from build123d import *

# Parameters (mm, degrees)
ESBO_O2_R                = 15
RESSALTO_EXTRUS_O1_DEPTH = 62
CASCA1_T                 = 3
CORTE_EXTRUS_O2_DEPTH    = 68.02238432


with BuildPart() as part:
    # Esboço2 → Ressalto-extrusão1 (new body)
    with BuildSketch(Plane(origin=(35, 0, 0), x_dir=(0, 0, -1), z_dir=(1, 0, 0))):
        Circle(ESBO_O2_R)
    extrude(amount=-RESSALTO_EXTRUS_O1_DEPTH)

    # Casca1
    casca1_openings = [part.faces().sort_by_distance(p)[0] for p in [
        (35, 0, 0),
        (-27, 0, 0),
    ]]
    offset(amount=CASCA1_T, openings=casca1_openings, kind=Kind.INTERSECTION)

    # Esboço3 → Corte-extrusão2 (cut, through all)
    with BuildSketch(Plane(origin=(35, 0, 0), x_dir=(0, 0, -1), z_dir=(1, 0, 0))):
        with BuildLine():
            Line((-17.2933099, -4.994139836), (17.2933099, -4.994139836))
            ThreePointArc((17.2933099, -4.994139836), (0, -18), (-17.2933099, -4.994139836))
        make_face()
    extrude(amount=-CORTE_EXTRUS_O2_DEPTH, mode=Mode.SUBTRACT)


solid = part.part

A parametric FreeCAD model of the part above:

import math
import FreeCAD as App
import Part
import Sketcher
from FreeCAD import Vector
Q = App.Units.Quantity


def faces_at(feature, points):
    """Names of the faces that lie closest to the given points."""
    faces = feature.Shape.Faces
    near = lambda p: min(range(len(faces)), key=lambda i: faces[i].distToShape(Part.Vertex(*p))[0])
    return sorted({f"Face{near(p) + 1}" for p in points})

doc = App.newDocument("Part")
body = doc.addObject("PartDesign::Body", "Body")

sketch1 = body.newObject("Sketcher::SketchObject", "Sketch")
sketch1.AttachmentSupport = (doc.getObject("YZ_Plane"), [""])
sketch1.MapMode = "FlatFace"
sketch1.AttachmentOffset = App.Placement(Vector(0, 0, 35), App.Rotation())
sketch1.addGeometry(Part.Circle(Vector(0, 0, 0), Vector(0, 0, 1), 15), False)
sketch1.addConstraint([
    Sketcher.Constraint("Coincident", 0, 3, -1, 1),
    Sketcher.Constraint("Diameter", 0, Q("30 mm")),
])
pad1 = body.newObject("PartDesign::Pad", "Pad")
pad1.Profile = sketch1
pad1.Length = 62
pad1.Reversed = True
doc.recompute()

thickness = body.newObject("PartDesign::Thickness", "Thickness")
thickness.Base = (pad1, faces_at(pad1, [(35, 0, 0), (-27, 0, 0)]))
thickness.Value = 3
thickness.Reversed = False
thickness.Join = "Intersection"

sketch2 = body.newObject("Sketcher::SketchObject", "Sketch001")
sketch2.AttachmentSupport = (doc.getObject("YZ_Plane"), [""])
sketch2.MapMode = "FlatFace"
sketch2.AttachmentOffset = App.Placement(Vector(0, 0, 35), App.Rotation())
sketch2.addGeometry([
    Part.LineSegment(Vector(-5, -17, 0), Vector(-5, 17, 0)),
    Part.ArcOfCircle(Part.Circle(Vector(0, 0, 0), Vector(0, 0, 1), 18), math.radians(106), math.radians(254)),
], False)
sketch2.addConstraint([
    Sketcher.Constraint("Coincident", 0, 1, 1, 2),
    Sketcher.Constraint("Coincident", 1, 1, 0, 2),
    Sketcher.Constraint("Vertical", 0),
    Sketcher.Constraint("Coincident", 1, 3, -1, 1),
    Sketcher.Constraint("Radius", 1, Q("18 mm")),
    Sketcher.Constraint("DistanceY", 0, 1, 0, 2, Q("34.58662 mm")),
])
pocket1 = body.newObject("PartDesign::Pocket", "Pocket")
pocket1.Profile = sketch2
pocket1.Type = "ThroughAll"

doc.recompute()
